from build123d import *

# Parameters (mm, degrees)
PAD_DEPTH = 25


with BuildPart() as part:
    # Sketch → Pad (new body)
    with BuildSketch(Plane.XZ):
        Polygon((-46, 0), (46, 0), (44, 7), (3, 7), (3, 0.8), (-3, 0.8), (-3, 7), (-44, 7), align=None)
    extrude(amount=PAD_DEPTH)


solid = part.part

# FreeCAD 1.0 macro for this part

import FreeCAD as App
import Part
import Sketcher

doc = App.newDocument("Part")
body = doc.addObject("PartDesign::Body", "Body")

sketch1 = doc.addObject("Sketcher::SketchObject", "Sketch")
body.addObject(sketch1)
sketch1.AttachmentSupport = (doc.XZ_Plane, [""])
sketch1.MapMode = "FlatFace"
sketch1.addGeometry([
    Part.LineSegment(App.Vector(-46, 0, 0), App.Vector(46, 0, 0)),
    Part.LineSegment(App.Vector(46, 0, 0), App.Vector(44, 7, 0)),
    Part.LineSegment(App.Vector(44, 7, 0), App.Vector(3, 7, 0)),
    Part.LineSegment(App.Vector(3, 7, 0), App.Vector(3, 1, 0)),
    Part.LineSegment(App.Vector(3, 1, 0), App.Vector(-3, 1, 0)),
    Part.LineSegment(App.Vector(-3, 1, 0), App.Vector(-3, 7, 0)),
    Part.LineSegment(App.Vector(-3, 7, 0), App.Vector(-44, 7, 0)),
    Part.LineSegment(App.Vector(-44, 7, 0), App.Vector(-46, 0, 0)),
], False)
sketch1.addConstraint([
    Sketcher.Constraint("Coincident", 0, 2, 1, 1),
    Sketcher.Constraint("Coincident", 1, 2, 2, 1),
    Sketcher.Constraint("Coincident", 2, 2, 3, 1),
    Sketcher.Constraint("Coincident", 3, 2, 4, 1),
    Sketcher.Constraint("Coincident", 4, 2, 5, 1),
    Sketcher.Constraint("Coincident", 5, 2, 6, 1),
    Sketcher.Constraint("Coincident", 6, 2, 7, 1),
    Sketcher.Constraint("Coincident", 7, 2, 0, 1),
    Sketcher.Constraint("Horizontal", 0),
    Sketcher.Constraint("Horizontal", 2),
    Sketcher.Constraint("Vertical", 3),
    Sketcher.Constraint("Horizontal", 4),
    Sketcher.Constraint("Vertical", 5),
    Sketcher.Constraint("Horizontal", 6),
    Sketcher.Constraint("Symmetric", 0, 2, 7, 2, -1, 1),
    Sketcher.Constraint("Symmetric", 2, 2, 5, 2, -2),
    Sketcher.Constraint("Equal", 2, 6),
    Sketcher.Constraint("DistanceX", 0, 1, 0, 2, 92.0),
    Sketcher.Constraint("DistanceX", 2, 2, 2, 1, 41.0),
    Sketcher.Constraint("DistanceX", 4, 2, 4, 1, 6.0),
    Sketcher.Constraint("DistanceY", 3, 2, 3, 1, 6.2),
    Sketcher.Constraint("DistanceY", -1, 1, 1, 2, 7.0),
])
pad1 = doc.addObject("PartDesign::Pad", "Pad")
body.addObject(pad1)
pad1.Profile = sketch1
pad1.Length = 25

doc.recompute()
